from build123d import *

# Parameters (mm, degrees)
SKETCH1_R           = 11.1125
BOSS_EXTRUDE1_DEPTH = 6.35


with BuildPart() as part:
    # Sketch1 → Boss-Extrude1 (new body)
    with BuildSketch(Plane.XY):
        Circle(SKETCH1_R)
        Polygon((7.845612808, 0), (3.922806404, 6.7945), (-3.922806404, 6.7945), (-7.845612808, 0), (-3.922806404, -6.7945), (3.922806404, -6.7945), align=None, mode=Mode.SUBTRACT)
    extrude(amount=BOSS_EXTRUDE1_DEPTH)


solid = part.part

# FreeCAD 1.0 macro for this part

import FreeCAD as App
import Part
import Sketcher
Q = App.Units.Quantity


def add_polygon(sketch, points):
    """Adds a closed chain of lines whose ends are joined by coincident constraints."""
    first, n = sketch.GeometryCount, len(points)
    for a, b in zip(points, points[1:] + points[:1]):
        sketch.addGeometry(Part.LineSegment(App.Vector(*a, 0), App.Vector(*b, 0)), False)
    for i in range(n):
        sketch.addConstraint(Sketcher.Constraint("Coincident", first + i, 2, first + (i + 1) % n, 1))

doc = App.newDocument("Part")
body = doc.addObject("PartDesign::Body", "Body")

# Sketch on XY plane
sketch1 = body.newObject("Sketcher::SketchObject", "Sketch")
sketch1.AttachmentSupport = (doc.getObject("XY_Plane"), [""])
sketch1.MapMode = "FlatFace"
sketch1.addGeometry(Part.Circle(App.Vector(0, 0, 0), App.Vector(0, 0, 1), 11), False)  # 0
add_polygon(sketch1, [(4, 7), (8, 0), (4, -7), (-4, -7), (-8, 0), (-4, 7)])  # lines 1-6
sketch1.addConstraint(Sketcher.Constraint("Horizontal", 3))
sketch1.addConstraint(Sketcher.Constraint("Horizontal", 6))
sketch1.addConstraint(Sketcher.Constraint("Coincident", 0, 3, -1, 1))
sketch1.addConstraint(Sketcher.Constraint("Symmetric", 1, 2, 4, 2, -1, 1))
sketch1.addConstraint(Sketcher.Constraint("Symmetric", 2, 2, 5, 2, -1, 1))
sketch1.addConstraint(Sketcher.Constraint("PointOnObject", 1, 2, -1))
sketch1.addConstraint(Sketcher.Constraint("Parallel", 1, 4))
sketch1.addConstraint(Sketcher.Constraint("Vertical", 3, 2, 5, 2))
sketch1.addConstraint(Sketcher.Constraint("Diameter", 0, Q("0.875 in")))
sketch1.addConstraint(Sketcher.Constraint("Angle", 1, Q("-60 deg")))
sketch1.addConstraint(Sketcher.Constraint("DistanceY", 3, 2, 5, 2, Q("0.535 in")))
sketch1.addConstraint(Sketcher.Constraint("DistanceX", 3, 2, 3, 1, Q("7.845613 mm")))
pad1 = body.newObject("PartDesign::Pad", "Pad")
pad1.Profile = sketch1
pad1.Length = Q("0.25 in")

doc.recompute()
